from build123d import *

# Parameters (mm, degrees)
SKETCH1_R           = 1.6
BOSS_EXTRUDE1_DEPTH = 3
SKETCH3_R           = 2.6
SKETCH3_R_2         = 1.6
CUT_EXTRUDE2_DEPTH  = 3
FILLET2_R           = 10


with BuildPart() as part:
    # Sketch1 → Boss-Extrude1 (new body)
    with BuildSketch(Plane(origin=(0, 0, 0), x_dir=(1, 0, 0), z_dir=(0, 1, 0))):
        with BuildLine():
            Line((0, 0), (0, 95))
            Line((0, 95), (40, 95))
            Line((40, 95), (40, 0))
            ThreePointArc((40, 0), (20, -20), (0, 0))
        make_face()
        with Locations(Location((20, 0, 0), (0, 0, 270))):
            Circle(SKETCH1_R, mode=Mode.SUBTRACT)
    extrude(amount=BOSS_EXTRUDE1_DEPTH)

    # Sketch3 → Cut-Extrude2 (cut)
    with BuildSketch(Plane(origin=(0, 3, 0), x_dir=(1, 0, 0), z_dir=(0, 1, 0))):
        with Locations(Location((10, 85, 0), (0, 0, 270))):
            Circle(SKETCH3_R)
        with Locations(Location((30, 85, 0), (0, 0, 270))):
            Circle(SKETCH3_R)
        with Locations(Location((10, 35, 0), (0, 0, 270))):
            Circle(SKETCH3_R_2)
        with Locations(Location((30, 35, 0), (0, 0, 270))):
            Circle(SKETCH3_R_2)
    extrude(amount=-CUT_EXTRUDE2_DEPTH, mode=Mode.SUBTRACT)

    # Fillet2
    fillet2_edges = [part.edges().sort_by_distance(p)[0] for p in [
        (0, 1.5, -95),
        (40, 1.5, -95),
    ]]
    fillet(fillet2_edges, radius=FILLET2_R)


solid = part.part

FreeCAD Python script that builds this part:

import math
import FreeCAD as App
import Part
import Sketcher


def edges_at(feature, points):
    """Names of the edges that pass closest to the given points."""
    edges = feature.Shape.Edges
    near = lambda p: min(range(len(edges)), key=lambda i: edges[i].distToShape(Part.Vertex(*p))[0])
    return sorted({f"Edge{near(p) + 1}" for p in points})

doc = App.newDocument("Part")
body = doc.addObject("PartDesign::Body", "Body")

# Sketch on XZ plane
sketch1 = doc.addObject("Sketcher::SketchObject", "Sketch")
body.addObject(sketch1)
sketch1.AttachmentSupport = (doc.XZ_Plane, [""])
sketch1.MapMode = "FlatFace"
sketch1.addGeometry([
    Part.LineSegment(App.Vector(0, -95, 0), App.Vector(0, 0, 0)),  # 0
    Part.ArcOfCircle(Part.Circle(App.Vector(20, 0, 0), App.Vector(0, 0, 1), 20), math.radians(0), math.radians(180)),  # 1
    Part.LineSegment(App.Vector(40, 0, 0), App.Vector(40, -95, 0)),  # 2
    Part.LineSegment(App.Vector(40, -95, 0), App.Vector(0, -95, 0)),  # 3
    Part.Circle(App.Vector(20, 0, 0), App.Vector(0, 0, 1), 1.6),  # 4
], False)
sketch1.addConstraint([
    Sketcher.Constraint("Tangent", 0, 2, 1, 2),
    Sketcher.Constraint("Tangent", 1, 1, 2, 1),
    Sketcher.Constraint("Coincident", 2, 2, 3, 1),
    Sketcher.Constraint("Coincident", 3, 2, 0, 1),
    Sketcher.Constraint("Vertical", 0),
    Sketcher.Constraint("Vertical", 2),
    Sketcher.Constraint("Horizontal", 3),
    Sketcher.Constraint("Coincident", 0, 2, -1, 1),
    Sketcher.Constraint("Coincident", 4, 3, 1, 3),
    Sketcher.Constraint("Radius", 1, 20.0),
    Sketcher.Constraint("Diameter", 4, 3.2),
    Sketcher.Constraint("DistanceY", 0, 1, 0, 2, 95.0),
])
pad1 = doc.addObject("PartDesign::Pad", "Pad")
body.addObject(pad1)
pad1.Profile = sketch1
pad1.Length = 3
pad1.Reversed = True

# Sketch on XZ plane
sketch2 = doc.addObject("Sketcher::SketchObject", "Sketch001")
body.addObject(sketch2)
sketch2.AttachmentSupport = (doc.XZ_Plane, [""])
sketch2.MapMode = "FlatFace"
sketch2.AttachmentOffset = App.Placement(App.Vector(0, 0, -3), App.Rotation())
sketch2.addGeometry([
    Part.Circle(App.Vector(10, -85, 0), App.Vector(0, 0, 1), 2.6),
    Part.Circle(App.Vector(30, -85, 0), App.Vector(0, 0, 1), 2.6),
    Part.Circle(App.Vector(10, -35, 0), App.Vector(0, 0, 1), 1.6),
    Part.Circle(App.Vector(30, -35, 0), App.Vector(0, 0, 1), 1.6),
], False)
sketch2.addConstraint([
    Sketcher.Constraint("Equal", 0, 1),
    Sketcher.Constraint("Equal", 2, 3),
    Sketcher.Constraint("Horizontal", 0, 3, 1, 3),
    Sketcher.Constraint("Horizontal", 2, 3, 3, 3),
    Sketcher.Constraint("Vertical", 0, 3, 2, 3),
    Sketcher.Constraint("Vertical", 1, 3, 3, 3),
    Sketcher.Constraint("Diameter", 0, 5.2),
    Sketcher.Constraint("Diameter", 2, 3.2),
    Sketcher.Constraint("DistanceX", -1, 1, 0, 3, 10.0),
    Sketcher.Constraint("DistanceY", 0, 3, -1, 1, 85.0),
    Sketcher.Constraint("DistanceX", -1, 1, 1, 3, 30.0),
    Sketcher.Constraint("DistanceY", 2, 3, -1, 1, 35.0),
])
pocket1 = doc.addObject("PartDesign::Pocket", "Pocket")
body.addObject(pocket1)
pocket1.Profile = sketch2
pocket1.Length = 3
pocket1.Reversed = True
doc.recompute()

fillet = doc.addObject("PartDesign::Fillet", "Fillet")
body.addObject(fillet)
fillet.Base = (pocket1, edges_at(pocket1, [(0, 1.5, -95), (40, 1.5, -95)]))
fillet.Radius = 10

doc.recompute()
